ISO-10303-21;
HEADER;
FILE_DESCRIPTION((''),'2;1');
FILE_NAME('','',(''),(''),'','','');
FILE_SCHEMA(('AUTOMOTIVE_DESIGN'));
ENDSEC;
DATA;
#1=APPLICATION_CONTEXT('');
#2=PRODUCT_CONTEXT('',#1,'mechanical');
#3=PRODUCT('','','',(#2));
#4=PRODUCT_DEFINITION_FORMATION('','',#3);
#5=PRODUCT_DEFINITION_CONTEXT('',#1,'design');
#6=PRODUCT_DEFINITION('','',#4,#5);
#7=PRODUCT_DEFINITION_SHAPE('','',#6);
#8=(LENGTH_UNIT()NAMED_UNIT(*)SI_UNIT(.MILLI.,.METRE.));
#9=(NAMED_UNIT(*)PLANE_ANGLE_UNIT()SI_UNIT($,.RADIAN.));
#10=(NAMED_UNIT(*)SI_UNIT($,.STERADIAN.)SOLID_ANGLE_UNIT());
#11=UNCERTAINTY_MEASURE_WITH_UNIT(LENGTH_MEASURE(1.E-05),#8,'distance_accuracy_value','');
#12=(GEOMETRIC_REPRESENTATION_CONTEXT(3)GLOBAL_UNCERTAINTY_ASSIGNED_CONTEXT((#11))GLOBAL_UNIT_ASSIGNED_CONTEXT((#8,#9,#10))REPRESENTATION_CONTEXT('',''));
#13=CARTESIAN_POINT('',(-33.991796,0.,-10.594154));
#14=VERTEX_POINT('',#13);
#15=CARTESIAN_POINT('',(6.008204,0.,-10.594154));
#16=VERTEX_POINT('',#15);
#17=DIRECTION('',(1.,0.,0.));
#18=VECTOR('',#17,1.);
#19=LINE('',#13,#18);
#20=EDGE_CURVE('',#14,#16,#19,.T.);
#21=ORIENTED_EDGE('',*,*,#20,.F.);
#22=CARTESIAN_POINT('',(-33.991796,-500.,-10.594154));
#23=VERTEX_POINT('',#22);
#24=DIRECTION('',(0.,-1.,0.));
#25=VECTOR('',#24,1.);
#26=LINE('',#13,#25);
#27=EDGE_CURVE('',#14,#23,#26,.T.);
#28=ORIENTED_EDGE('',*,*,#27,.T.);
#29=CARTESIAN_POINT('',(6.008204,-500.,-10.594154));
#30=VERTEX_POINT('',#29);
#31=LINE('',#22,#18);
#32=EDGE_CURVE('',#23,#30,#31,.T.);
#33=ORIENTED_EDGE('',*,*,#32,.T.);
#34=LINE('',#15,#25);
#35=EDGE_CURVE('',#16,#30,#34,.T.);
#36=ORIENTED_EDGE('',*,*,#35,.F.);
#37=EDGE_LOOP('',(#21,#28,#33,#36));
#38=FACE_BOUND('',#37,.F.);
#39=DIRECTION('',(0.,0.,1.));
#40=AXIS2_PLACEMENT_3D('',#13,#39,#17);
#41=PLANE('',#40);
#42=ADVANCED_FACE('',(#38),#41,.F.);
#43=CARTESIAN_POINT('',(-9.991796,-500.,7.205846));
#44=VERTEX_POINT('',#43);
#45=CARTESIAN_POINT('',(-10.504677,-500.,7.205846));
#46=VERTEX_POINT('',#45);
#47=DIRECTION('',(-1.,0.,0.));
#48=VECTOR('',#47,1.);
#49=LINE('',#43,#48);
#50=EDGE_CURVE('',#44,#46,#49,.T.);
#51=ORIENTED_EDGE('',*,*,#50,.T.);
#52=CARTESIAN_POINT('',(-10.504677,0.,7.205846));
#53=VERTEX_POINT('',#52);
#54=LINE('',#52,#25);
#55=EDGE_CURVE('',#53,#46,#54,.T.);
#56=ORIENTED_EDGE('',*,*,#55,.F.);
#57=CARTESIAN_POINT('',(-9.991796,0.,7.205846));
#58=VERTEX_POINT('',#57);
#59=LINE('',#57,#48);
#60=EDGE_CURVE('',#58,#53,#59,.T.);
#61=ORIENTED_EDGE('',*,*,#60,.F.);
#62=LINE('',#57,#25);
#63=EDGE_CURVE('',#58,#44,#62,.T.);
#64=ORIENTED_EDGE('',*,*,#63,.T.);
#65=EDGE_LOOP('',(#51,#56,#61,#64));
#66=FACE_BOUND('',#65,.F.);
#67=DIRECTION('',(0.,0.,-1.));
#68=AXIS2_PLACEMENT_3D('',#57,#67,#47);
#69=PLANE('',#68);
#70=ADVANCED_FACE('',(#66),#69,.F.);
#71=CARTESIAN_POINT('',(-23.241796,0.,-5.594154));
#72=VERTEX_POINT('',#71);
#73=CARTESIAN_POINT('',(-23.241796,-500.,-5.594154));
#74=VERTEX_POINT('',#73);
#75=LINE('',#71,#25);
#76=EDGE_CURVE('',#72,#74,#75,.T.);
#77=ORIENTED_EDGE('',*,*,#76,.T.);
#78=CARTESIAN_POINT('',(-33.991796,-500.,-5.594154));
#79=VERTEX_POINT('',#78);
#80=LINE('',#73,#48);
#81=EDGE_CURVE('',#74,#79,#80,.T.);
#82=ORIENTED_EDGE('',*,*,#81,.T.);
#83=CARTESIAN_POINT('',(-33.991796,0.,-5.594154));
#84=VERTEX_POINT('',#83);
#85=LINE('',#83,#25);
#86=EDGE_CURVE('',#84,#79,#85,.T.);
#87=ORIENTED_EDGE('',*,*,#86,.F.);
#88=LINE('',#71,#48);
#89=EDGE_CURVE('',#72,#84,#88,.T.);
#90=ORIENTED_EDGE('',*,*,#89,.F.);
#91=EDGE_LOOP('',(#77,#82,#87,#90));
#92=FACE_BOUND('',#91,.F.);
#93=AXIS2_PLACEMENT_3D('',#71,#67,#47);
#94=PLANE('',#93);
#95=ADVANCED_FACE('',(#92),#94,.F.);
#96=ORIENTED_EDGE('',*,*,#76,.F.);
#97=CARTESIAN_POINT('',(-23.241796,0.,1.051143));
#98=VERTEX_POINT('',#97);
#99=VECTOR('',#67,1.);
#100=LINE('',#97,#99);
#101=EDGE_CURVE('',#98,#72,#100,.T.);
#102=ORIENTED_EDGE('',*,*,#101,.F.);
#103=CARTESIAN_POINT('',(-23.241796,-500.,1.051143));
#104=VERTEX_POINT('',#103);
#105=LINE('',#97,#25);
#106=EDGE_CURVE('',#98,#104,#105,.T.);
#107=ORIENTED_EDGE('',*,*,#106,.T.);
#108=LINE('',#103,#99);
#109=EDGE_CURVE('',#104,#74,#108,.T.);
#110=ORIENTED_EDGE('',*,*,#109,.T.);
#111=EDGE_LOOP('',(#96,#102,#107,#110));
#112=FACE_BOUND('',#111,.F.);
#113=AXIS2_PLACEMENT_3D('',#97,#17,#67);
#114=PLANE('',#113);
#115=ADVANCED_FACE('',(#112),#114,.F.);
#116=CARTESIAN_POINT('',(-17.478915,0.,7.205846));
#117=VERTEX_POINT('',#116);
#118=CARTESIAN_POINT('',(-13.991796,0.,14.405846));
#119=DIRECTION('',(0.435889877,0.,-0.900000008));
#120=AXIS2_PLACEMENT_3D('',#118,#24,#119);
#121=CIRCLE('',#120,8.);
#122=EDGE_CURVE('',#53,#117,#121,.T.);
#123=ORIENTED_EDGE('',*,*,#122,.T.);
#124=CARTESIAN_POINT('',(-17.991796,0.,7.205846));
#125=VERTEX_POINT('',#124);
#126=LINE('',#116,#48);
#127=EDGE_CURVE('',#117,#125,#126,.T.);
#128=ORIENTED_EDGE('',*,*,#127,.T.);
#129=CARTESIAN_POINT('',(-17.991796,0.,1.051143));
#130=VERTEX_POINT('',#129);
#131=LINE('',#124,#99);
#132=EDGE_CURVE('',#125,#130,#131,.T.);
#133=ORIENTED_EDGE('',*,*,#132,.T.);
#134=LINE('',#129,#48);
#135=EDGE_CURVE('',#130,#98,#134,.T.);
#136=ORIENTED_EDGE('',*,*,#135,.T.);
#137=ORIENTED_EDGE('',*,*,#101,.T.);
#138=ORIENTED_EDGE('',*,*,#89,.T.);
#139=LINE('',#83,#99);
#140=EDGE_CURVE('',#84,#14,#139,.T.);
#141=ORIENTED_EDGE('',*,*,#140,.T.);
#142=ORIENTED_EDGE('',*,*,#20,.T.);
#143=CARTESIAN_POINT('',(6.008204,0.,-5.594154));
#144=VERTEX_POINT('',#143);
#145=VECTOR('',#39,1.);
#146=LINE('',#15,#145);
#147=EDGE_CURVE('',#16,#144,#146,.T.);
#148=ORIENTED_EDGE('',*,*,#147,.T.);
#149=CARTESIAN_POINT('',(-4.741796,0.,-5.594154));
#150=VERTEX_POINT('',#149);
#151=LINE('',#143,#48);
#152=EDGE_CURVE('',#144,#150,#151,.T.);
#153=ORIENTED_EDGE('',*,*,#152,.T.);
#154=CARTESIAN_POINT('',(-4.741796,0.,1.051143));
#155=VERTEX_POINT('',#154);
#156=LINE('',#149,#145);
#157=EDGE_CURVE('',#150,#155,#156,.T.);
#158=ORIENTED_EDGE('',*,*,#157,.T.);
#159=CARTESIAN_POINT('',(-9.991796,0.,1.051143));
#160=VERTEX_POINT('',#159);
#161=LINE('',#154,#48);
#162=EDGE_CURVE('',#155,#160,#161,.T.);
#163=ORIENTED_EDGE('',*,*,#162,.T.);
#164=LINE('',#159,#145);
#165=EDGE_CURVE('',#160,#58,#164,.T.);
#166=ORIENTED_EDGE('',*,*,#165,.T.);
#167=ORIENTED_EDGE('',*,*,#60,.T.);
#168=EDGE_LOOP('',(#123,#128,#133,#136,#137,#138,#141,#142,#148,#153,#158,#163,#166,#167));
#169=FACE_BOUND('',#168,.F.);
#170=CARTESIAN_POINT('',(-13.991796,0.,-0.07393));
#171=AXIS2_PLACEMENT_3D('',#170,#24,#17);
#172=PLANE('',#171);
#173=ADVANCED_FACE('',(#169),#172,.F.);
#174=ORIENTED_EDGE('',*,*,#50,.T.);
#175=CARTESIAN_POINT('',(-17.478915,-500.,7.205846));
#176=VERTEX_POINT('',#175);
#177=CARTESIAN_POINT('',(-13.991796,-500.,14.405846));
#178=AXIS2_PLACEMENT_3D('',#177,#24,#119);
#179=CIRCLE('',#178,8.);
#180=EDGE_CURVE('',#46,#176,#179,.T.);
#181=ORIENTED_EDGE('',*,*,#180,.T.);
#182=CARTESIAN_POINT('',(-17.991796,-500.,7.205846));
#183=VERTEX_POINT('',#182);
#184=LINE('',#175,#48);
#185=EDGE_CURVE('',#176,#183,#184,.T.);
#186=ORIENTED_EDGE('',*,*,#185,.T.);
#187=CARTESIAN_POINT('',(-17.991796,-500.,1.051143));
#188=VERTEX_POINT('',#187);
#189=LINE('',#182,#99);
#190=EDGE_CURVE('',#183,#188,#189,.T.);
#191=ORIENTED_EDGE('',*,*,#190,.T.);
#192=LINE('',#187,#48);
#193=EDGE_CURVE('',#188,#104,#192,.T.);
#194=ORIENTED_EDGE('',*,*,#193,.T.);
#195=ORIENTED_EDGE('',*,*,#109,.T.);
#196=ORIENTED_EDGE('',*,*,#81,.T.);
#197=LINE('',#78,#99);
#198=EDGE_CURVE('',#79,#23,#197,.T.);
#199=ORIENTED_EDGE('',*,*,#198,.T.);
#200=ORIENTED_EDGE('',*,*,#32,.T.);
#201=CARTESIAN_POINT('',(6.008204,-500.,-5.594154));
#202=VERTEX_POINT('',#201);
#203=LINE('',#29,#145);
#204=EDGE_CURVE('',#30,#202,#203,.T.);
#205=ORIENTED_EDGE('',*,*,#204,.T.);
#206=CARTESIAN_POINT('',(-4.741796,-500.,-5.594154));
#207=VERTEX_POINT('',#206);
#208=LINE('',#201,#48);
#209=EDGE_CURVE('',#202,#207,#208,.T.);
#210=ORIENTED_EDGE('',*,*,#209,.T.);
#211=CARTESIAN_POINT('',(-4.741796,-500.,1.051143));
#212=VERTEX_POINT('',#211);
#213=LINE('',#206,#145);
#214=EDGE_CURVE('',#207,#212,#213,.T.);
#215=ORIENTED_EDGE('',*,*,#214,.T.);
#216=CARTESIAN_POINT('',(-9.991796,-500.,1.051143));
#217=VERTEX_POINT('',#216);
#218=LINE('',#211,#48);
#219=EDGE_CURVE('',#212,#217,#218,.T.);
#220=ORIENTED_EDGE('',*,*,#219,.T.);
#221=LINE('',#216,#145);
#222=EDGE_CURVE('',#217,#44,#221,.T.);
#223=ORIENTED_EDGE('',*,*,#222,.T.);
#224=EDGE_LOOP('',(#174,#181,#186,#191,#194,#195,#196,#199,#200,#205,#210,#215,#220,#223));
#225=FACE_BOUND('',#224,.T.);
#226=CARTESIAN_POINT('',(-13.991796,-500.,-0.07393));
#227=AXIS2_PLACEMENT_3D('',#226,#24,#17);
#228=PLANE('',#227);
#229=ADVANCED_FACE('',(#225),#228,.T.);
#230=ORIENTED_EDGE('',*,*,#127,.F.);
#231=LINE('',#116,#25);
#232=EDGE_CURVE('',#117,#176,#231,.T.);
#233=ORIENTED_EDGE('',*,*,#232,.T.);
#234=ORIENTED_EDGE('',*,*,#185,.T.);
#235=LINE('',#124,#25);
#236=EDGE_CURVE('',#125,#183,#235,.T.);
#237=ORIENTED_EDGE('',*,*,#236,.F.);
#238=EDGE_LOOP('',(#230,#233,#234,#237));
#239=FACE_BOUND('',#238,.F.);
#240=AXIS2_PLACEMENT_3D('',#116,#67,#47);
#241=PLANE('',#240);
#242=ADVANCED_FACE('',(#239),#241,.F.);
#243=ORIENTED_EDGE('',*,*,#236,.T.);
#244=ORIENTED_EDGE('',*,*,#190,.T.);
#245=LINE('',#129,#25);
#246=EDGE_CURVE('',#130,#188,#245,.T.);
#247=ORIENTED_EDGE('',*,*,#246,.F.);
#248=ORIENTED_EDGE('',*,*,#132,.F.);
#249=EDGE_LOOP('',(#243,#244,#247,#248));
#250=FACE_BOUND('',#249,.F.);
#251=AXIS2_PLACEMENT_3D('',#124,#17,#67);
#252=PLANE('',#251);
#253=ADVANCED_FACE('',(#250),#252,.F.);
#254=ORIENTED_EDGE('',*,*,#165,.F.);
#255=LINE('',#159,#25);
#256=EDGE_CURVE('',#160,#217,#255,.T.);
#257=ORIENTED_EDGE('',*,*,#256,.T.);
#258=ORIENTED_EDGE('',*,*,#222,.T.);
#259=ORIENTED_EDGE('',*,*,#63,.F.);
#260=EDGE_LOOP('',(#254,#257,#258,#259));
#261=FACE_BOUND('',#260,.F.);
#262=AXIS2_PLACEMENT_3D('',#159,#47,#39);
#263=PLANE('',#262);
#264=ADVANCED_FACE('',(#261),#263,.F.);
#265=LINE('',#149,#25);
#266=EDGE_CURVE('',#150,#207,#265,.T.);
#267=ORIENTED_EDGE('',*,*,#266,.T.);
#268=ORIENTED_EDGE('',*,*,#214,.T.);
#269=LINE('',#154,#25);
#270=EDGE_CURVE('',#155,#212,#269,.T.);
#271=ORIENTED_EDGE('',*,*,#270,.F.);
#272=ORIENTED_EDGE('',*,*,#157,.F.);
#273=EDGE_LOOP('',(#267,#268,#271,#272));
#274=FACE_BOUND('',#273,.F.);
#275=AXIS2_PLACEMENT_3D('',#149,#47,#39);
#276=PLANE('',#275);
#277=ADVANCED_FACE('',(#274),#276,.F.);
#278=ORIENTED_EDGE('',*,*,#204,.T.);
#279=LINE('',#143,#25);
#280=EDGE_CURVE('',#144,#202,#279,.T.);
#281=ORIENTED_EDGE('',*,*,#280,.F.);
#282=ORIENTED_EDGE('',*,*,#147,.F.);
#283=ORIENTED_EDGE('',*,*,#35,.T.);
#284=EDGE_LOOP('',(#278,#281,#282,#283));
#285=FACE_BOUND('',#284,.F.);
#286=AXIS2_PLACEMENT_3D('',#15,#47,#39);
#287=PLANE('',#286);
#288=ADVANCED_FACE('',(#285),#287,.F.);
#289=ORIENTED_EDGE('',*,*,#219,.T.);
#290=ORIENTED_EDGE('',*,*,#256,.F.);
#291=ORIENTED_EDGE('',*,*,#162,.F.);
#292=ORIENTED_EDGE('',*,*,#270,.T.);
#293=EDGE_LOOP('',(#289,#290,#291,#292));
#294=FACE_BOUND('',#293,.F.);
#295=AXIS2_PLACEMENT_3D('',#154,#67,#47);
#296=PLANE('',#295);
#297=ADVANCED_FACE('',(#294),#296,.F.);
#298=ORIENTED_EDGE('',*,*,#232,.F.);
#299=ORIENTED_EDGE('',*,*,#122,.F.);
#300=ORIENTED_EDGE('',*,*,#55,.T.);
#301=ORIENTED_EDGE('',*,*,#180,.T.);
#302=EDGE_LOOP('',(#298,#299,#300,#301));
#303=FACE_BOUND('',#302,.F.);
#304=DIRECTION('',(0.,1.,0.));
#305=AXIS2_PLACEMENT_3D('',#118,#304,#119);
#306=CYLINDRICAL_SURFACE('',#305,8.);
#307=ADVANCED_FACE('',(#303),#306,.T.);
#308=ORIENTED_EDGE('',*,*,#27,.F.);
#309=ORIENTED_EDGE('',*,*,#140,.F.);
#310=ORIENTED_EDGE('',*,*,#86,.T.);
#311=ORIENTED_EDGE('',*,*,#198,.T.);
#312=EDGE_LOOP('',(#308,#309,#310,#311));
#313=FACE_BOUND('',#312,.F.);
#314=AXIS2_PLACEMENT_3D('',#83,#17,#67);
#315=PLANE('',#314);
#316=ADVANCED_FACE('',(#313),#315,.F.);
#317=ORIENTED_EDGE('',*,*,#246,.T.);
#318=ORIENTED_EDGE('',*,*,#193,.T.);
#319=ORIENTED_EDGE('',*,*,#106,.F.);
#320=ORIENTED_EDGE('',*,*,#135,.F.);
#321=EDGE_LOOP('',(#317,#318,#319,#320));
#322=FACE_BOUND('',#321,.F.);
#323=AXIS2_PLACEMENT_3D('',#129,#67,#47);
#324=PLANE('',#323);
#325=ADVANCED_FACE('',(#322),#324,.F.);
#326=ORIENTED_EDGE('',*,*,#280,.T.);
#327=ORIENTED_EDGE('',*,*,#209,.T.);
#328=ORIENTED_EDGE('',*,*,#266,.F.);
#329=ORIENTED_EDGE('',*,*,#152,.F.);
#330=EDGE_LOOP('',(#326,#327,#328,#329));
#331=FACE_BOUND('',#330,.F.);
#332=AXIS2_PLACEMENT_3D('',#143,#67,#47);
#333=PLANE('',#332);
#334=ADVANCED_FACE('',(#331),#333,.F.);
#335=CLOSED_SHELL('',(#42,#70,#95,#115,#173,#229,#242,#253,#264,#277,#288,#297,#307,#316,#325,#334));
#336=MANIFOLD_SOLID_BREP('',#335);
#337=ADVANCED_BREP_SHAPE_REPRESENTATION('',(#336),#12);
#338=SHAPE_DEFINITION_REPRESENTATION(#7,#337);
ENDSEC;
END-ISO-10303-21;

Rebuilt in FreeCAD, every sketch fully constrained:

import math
import FreeCAD as App
import Part
import Sketcher
from FreeCAD import Vector
Q = App.Units.Quantity

doc = App.newDocument("Part")
body = doc.addObject("PartDesign::Body", "Body")

sketch1 = body.newObject("Sketcher::SketchObject", "Sketch")
sketch1.AttachmentSupport = (doc.getObject("XZ_Plane"), [""])
sketch1.MapMode = "FlatFace"
sketch1.addGeometry([
    Part.LineSegment(Vector(-33.991796, -5.594154, 0), Vector(-33.991796, -10.594154, 0)),
    Part.LineSegment(Vector(-33.991796, -10.594154, 0), Vector(6.008204, -10.594154, 0)),
    Part.LineSegment(Vector(6.008204, -10.594154, 0), Vector(6.008204, -5.594154, 0)),
    Part.LineSegment(Vector(6.008204, -5.594154, 0), Vector(-4.741796, -5.594154, 0)),
    Part.LineSegment(Vector(-4.741796, -5.594154, 0), Vector(-4.741796, 1.051143, 0)),
    Part.LineSegment(Vector(-4.741796, 1.051143, 0), Vector(-9.991796, 1.051143, 0)),
    Part.LineSegment(Vector(-9.991796, 1.051143, 0), Vector(-9.991796, 7.205846, 0)),
    Part.LineSegment(Vector(-9.991796, 7.205846, 0), Vector(-10.504677, 7.205846, 0)),
    Part.ArcOfCircle(Part.Circle(Vector(-13.991796, 14.405846, 0), Vector(0, 0, 1), 8), math.radians(-64.158068), math.radians(244.158068)),
    Part.LineSegment(Vector(-17.478915, 7.205846, 0), Vector(-17.991796, 7.205846, 0)),
    Part.LineSegment(Vector(-17.991796, 7.205846, 0), Vector(-17.991796, 1.051143, 0)),
    Part.LineSegment(Vector(-17.991796, 1.051143, 0), Vector(-23.241796, 1.051143, 0)),
    Part.LineSegment(Vector(-23.241796, 1.051143, 0), Vector(-23.241796, -5.594154, 0)),
    Part.LineSegment(Vector(-23.241796, -5.594154, 0), Vector(-33.991796, -5.594154, 0)),
], False)
sketch1.addConstraint([
    Sketcher.Constraint("Coincident", 0, 2, 1, 1),
    Sketcher.Constraint("Coincident", 1, 2, 2, 1),
    Sketcher.Constraint("Coincident", 2, 2, 3, 1),
    Sketcher.Constraint("Coincident", 3, 2, 4, 1),
    Sketcher.Constraint("Coincident", 4, 2, 5, 1),
    Sketcher.Constraint("Coincident", 5, 2, 6, 1),
    Sketcher.Constraint("Coincident", 6, 2, 7, 1),
    Sketcher.Constraint("Coincident", 7, 2, 8, 1),
    Sketcher.Constraint("Coincident", 8, 2, 9, 1),
    Sketcher.Constraint("Coincident", 9, 2, 10, 1),
    Sketcher.Constraint("Coincident", 10, 2, 11, 1),
    Sketcher.Constraint("Coincident", 11, 2, 12, 1),
    Sketcher.Constraint("Coincident", 12, 2, 13, 1),
    Sketcher.Constraint("Coincident", 13, 2, 0, 1),
    Sketcher.Constraint("Vertical", 0),
    Sketcher.Constraint("Horizontal", 1),
    Sketcher.Constraint("Vertical", 2),
    Sketcher.Constraint("Horizontal", 3),
    Sketcher.Constraint("Vertical", 4),
    Sketcher.Constraint("Horizontal", 5),
    Sketcher.Constraint("Vertical", 6),
    Sketcher.Constraint("Horizontal", 7),
    Sketcher.Constraint("Horizontal", 9),
    Sketcher.Constraint("Vertical", 10),
    Sketcher.Constraint("Horizontal", 11),
    Sketcher.Constraint("Vertical", 12),
    Sketcher.Constraint("Horizontal", 13),
    Sketcher.Constraint("Horizontal", 7, 2, 8, 2),
    Sketcher.Constraint("Horizontal", 5, 2, 10, 2),
    Sketcher.Constraint("Horizontal", 3, 2, 12, 2),
    Sketcher.Constraint("Equal", 7, 9),
    Sketcher.Constraint("Equal", 5, 11),
    Sketcher.Constraint("Equal", 3, 13),
    Sketcher.Constraint("Radius", 8, Q("8 mm")),
    Sketcher.Constraint("DistanceX", 1, 1, 1, 2, Q("40 mm")),
    Sketcher.Constraint("DistanceY", 0, 2, 0, 1, Q("5 mm")),
    Sketcher.Constraint("DistanceY", 0, 2, 8, 3, Q("25 mm")),
    Sketcher.Constraint("DistanceX", 8, 3, 5, 2, Q("4 mm")),
    Sketcher.Constraint("DistanceX", 3, 2, 3, 1, Q("10.75 mm")),
    Sketcher.Constraint("DistanceY", 6, 2, 8, 3, Q("7.2 mm")),
    Sketcher.Constraint("DistanceY", 4, 1, 4, 2, Q("6.645297 mm")),
    Sketcher.Constraint("DistanceX", 8, 3, -1, 1, Q("13.991796 mm")),
    Sketcher.Constraint("DistanceY", -1, 1, 8, 3, Q("14.405846 mm")),
])
pad1 = body.newObject("PartDesign::Pad", "Pad")
pad1.Profile = sketch1
pad1.Length = 500

doc.recompute()
